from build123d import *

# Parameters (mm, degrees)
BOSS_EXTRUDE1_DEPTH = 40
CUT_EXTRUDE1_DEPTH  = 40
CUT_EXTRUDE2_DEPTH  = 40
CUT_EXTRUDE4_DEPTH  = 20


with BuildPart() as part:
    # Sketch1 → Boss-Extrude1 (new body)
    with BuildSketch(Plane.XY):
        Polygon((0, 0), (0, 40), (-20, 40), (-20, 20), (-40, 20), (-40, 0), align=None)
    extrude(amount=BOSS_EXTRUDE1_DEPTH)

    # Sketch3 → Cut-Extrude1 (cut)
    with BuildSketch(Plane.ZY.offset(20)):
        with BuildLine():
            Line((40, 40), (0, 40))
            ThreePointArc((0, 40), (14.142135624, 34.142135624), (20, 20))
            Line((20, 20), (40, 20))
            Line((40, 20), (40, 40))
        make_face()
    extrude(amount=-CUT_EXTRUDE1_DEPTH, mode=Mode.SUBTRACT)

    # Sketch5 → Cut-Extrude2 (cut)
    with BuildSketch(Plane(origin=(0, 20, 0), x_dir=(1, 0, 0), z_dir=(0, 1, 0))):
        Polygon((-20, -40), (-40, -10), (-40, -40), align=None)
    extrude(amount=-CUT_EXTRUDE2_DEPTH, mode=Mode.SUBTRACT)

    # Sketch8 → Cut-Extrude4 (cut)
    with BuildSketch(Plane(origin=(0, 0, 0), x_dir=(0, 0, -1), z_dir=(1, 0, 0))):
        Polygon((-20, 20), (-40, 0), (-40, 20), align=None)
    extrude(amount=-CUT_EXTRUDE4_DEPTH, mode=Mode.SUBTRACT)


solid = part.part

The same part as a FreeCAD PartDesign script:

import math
import FreeCAD as App
import Part
import Sketcher
from FreeCAD import Vector

doc = App.newDocument("Part")
body = doc.addObject("PartDesign::Body", "Body")

# Sketch on XY plane
sketch1 = doc.addObject("Sketcher::SketchObject", "Sketch")
body.addObject(sketch1)
sketch1.AttachmentSupport = (doc.XY_Plane, [""])
sketch1.MapMode = "FlatFace"
sketch1.addGeometry([
    Part.LineSegment(Vector(0, 0, 0), Vector(0, 40, 0)),  # 0
    Part.LineSegment(Vector(0, 40, 0), Vector(-20, 40, 0)),  # 1
    Part.LineSegment(Vector(-20, 40, 0), Vector(-20, 20, 0)),  # 2
    Part.LineSegment(Vector(-20, 20, 0), Vector(-40, 20, 0)),  # 3
    Part.LineSegment(Vector(-40, 20, 0), Vector(-40, 0, 0)),  # 4
    Part.LineSegment(Vector(-40, 0, 0), Vector(0, 0, 0)),  # 5
], False)
sketch1.addConstraint([
    Sketcher.Constraint("Coincident", 0, 2, 1, 1),
    Sketcher.Constraint("Coincident", 1, 2, 2, 1),
    Sketcher.Constraint("Coincident", 2, 2, 3, 1),
    Sketcher.Constraint("Coincident", 3, 2, 4, 1),
    Sketcher.Constraint("Coincident", 4, 2, 5, 1),
    Sketcher.Constraint("Coincident", 5, 2, 0, 1),
    Sketcher.Constraint("Vertical", 0),
    Sketcher.Constraint("Horizontal", 1),
    Sketcher.Constraint("Vertical", 2),
    Sketcher.Constraint("Horizontal", 3),
    Sketcher.Constraint("Vertical", 4),
    Sketcher.Constraint("Horizontal", 5),
    Sketcher.Constraint("Coincident", 5, 2, -1, 1),
    Sketcher.Constraint("Equal", 1, 3),
    Sketcher.Constraint("Equal", 5, 0),
    Sketcher.Constraint("Equal", 3, 2),
    Sketcher.Constraint("DistanceX", 1, 2, 1, 1, 20.0),
])
pad1 = doc.addObject("PartDesign::Pad", "Pad")
body.addObject(pad1)
pad1.Profile = sketch1
pad1.Length = 40

# Sketch on YZ plane
sketch2 = doc.addObject("Sketcher::SketchObject", "Sketch001")
body.addObject(sketch2)
sketch2.AttachmentSupport = (doc.YZ_Plane, [""])
sketch2.MapMode = "FlatFace"
sketch2.AttachmentOffset = App.Placement(Vector(0, 0, -20), App.Rotation())
sketch2.addGeometry([
    Part.LineSegment(Vector(40, 40, 0), Vector(40, 0, 0)),
    Part.ArcOfCircle(Part.Circle(Vector(20, 0, 0), Vector(0, 0, 1), 20), math.radians(0), math.radians(90)),
    Part.LineSegment(Vector(20, 20, 0), Vector(20, 40, 0)),
    Part.LineSegment(Vector(20, 40, 0), Vector(40, 40, 0)),
], False)
sketch2.addConstraint([
    Sketcher.Constraint("Tangent", 0, 2, 1, 1),
    Sketcher.Constraint("Coincident", 1, 2, 2, 1),
    Sketcher.Constraint("Coincident", 2, 2, 3, 1),
    Sketcher.Constraint("Coincident", 3, 2, 0, 1),
    Sketcher.Constraint("Vertical", 0),
    Sketcher.Constraint("Vertical", 2),
    Sketcher.Constraint("Horizontal", 3),
    Sketcher.Constraint("PointOnObject", 1, 3, -1),
    Sketcher.Constraint("Equal", 3, 2),
    Sketcher.Constraint("Radius", 1, 20.0),
    Sketcher.Constraint("DistanceX", 3, 1, 3, 2, 20.0),
    Sketcher.Constraint("DistanceX", -1, 1, 1, 3, 20.0),
])
pocket1 = doc.addObject("PartDesign::Pocket", "Pocket")
body.addObject(pocket1)
pocket1.Profile = sketch2
pocket1.Length = 40
pocket1.Reversed = True

# Sketch on XZ plane
sketch3 = doc.addObject("Sketcher::SketchObject", "Sketch002")
body.addObject(sketch3)
sketch3.AttachmentSupport = (doc.XZ_Plane, [""])
sketch3.MapMode = "FlatFace"
sketch3.AttachmentOffset = App.Placement(Vector(0, 0, -20), App.Rotation())
sketch3.addGeometry([
    Part.LineSegment(Vector(-20, 40, 0), Vector(-40, 10, 0)),
    Part.LineSegment(Vector(-40, 10, 0), Vector(-40, 40, 0)),
    Part.LineSegment(Vector(-40, 40, 0), Vector(-20, 40, 0)),
], False)
sketch3.addConstraint([
    Sketcher.Constraint("Coincident", 0, 2, 1, 1),
    Sketcher.Constraint("Coincident", 1, 2, 2, 1),
    Sketcher.Constraint("Coincident", 2, 2, 0, 1),
    Sketcher.Constraint("Vertical", 1),
    Sketcher.Constraint("Horizontal", 2),
    Sketcher.Constraint("DistanceX", 2, 1, 2, 2, 20.0),
    Sketcher.Constraint("DistanceY", 1, 1, 1, 2, 30.0),
    Sketcher.Constraint("DistanceX", 0, 2, -1, 1, 40.0),
    Sketcher.Constraint("DistanceY", -1, 1, 0, 2, 10.0),
])
pocket2 = doc.addObject("PartDesign::Pocket", "Pocket001")
body.addObject(pocket2)
pocket2.Profile = sketch3
pocket2.Length = 40
pocket2.Reversed = True

# Sketch on YZ plane
sketch4 = doc.addObject("Sketcher::SketchObject", "Sketch003")
body.addObject(sketch4)
sketch4.AttachmentSupport = (doc.YZ_Plane, [""])
sketch4.MapMode = "FlatFace"
sketch4.addGeometry([
    Part.LineSegment(Vector(0, 40, 0), Vector(20, 20, 0)),
    Part.LineSegment(Vector(20, 20, 0), Vector(20, 40, 0)),
    Part.LineSegment(Vector(20, 40, 0), Vector(0, 40, 0)),
], False)
sketch4.addConstraint([
    Sketcher.Constraint("Coincident", 0, 2, 1, 1),
    Sketcher.Constraint("Coincident", 1, 2, 2, 1),
    Sketcher.Constraint("Coincident", 2, 2, 0, 1),
    Sketcher.Constraint("Vertical", 1),
    Sketcher.Constraint("Horizontal", 2),
    Sketcher.Constraint("PointOnObject", 2, 2, -2),
    Sketcher.Constraint("Equal", 2, 1),
    Sketcher.Constraint("DistanceX", 2, 2, 2, 1, 20.0),
    Sketcher.Constraint("DistanceY", -1, 1, 0, 2, 20.0),
])
pocket3 = doc.addObject("PartDesign::Pocket", "Pocket002")
body.addObject(pocket3)
pocket3.Profile = sketch4
pocket3.Length = 20

doc.recompute()
